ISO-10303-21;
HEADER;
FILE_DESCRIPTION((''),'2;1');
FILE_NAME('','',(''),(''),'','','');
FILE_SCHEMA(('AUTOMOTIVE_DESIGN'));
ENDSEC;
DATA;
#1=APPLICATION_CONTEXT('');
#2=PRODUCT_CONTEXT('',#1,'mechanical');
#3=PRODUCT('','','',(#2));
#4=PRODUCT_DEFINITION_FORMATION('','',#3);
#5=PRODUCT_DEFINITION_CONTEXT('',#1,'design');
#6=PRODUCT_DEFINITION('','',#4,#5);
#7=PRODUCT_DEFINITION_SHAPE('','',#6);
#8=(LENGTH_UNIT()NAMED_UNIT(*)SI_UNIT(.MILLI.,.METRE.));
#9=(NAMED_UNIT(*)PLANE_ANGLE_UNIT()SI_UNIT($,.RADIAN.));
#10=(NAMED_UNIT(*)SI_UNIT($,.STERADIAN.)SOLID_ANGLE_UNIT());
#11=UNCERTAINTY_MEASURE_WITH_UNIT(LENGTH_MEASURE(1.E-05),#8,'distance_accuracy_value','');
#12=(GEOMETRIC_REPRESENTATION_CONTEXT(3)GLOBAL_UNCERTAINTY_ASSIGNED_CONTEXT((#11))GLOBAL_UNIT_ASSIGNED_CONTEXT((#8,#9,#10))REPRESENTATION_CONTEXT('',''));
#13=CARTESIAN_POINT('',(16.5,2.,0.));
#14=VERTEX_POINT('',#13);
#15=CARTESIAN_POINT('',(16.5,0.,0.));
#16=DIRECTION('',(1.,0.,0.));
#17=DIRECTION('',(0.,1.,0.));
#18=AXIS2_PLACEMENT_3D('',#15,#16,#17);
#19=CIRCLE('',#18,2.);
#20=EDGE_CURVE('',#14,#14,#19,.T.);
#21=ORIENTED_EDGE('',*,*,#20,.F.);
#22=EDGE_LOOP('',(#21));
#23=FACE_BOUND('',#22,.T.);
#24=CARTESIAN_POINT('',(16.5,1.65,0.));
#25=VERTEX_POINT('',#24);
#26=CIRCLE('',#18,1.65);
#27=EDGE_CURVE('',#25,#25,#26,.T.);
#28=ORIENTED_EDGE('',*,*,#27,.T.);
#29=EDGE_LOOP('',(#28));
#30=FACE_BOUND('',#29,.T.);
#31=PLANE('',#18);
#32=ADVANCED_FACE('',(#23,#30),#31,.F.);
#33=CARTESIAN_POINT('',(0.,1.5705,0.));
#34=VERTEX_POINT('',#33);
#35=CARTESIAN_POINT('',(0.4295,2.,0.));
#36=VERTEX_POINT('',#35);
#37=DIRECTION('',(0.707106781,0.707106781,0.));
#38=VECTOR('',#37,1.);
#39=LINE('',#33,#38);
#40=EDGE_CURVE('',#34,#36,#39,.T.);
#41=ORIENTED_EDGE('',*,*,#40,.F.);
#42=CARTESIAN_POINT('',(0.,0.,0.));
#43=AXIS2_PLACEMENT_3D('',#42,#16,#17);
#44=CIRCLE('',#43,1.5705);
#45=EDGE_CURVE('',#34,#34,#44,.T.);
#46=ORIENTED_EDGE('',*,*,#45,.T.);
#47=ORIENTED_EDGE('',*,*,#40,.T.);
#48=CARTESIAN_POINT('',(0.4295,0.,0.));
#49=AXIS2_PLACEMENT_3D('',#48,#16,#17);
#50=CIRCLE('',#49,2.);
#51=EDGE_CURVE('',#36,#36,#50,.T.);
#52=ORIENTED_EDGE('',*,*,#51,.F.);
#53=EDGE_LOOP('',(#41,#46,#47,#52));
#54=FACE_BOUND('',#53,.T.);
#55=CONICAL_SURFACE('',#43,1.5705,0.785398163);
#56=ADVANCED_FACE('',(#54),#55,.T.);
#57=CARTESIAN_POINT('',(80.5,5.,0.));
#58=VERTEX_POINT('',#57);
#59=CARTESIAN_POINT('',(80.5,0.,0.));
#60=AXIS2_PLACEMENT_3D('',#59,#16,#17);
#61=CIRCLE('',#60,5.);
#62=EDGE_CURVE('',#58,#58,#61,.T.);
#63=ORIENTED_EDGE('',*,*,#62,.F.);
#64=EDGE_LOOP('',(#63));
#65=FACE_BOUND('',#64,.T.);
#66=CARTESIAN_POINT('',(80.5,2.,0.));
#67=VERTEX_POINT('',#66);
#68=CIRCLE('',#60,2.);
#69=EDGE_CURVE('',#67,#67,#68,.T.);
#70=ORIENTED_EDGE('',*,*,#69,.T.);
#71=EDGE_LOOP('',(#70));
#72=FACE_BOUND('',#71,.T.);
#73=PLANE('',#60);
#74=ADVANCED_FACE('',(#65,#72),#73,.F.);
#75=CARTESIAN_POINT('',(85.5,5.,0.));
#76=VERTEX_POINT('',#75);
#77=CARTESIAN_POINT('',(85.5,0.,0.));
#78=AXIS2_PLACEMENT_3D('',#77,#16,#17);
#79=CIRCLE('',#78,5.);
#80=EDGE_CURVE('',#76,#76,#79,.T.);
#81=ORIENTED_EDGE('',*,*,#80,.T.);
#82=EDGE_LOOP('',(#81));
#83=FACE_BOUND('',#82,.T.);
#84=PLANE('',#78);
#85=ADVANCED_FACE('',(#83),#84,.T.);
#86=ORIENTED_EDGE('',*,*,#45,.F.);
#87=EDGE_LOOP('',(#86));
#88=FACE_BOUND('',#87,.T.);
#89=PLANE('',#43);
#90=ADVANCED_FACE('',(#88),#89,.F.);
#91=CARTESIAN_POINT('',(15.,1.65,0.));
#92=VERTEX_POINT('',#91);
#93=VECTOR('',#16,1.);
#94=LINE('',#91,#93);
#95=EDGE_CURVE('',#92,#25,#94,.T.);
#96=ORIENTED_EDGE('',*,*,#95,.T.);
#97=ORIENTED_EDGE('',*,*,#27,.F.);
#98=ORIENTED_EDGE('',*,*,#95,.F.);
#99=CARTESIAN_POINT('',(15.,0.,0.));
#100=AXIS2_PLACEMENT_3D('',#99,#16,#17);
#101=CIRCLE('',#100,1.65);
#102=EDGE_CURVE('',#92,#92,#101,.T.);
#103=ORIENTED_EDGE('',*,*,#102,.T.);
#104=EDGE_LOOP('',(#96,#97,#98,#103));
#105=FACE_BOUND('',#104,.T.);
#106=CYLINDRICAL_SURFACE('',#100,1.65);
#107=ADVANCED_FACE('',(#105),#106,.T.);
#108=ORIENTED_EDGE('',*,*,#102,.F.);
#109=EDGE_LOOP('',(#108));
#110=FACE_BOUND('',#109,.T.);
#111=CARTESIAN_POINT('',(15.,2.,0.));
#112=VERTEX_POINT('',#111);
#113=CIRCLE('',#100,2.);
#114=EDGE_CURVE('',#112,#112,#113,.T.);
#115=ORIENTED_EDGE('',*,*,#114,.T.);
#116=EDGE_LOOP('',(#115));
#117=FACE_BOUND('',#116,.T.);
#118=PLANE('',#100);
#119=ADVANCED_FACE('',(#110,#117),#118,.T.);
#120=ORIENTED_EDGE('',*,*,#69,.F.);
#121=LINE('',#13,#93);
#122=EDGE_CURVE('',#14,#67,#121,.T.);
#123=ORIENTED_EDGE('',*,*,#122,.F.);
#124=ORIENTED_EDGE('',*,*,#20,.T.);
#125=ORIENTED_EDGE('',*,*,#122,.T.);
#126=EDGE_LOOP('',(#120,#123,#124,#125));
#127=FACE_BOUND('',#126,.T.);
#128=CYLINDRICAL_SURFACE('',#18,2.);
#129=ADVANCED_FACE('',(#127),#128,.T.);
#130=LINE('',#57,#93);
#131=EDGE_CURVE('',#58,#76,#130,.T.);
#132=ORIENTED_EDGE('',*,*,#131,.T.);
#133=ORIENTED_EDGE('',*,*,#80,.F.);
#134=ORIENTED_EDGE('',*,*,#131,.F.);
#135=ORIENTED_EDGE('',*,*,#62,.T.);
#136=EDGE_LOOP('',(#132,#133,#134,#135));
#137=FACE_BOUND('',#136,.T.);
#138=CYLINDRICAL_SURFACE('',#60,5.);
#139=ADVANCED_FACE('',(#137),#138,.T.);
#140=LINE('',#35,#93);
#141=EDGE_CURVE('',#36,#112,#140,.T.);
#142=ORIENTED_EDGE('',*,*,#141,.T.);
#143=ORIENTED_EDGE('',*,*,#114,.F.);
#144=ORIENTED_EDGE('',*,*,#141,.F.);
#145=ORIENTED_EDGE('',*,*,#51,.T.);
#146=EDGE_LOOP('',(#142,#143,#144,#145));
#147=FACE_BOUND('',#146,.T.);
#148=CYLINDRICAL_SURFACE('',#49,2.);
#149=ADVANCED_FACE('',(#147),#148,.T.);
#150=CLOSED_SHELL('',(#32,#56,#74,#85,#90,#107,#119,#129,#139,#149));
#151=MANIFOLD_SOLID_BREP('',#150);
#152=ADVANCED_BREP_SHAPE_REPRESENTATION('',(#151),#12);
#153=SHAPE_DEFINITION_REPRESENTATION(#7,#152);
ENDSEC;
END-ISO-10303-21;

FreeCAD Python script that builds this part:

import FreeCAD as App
import Part
import Sketcher
Q = App.Units.Quantity

doc = App.newDocument("Part")
body = doc.addObject("PartDesign::Body", "Body")

# Sketch on XY plane
sketch1 = body.newObject("Sketcher::SketchObject", "Sketch")
sketch1.AttachmentSupport = (doc.getObject("XY_Plane"), [""])
sketch1.MapMode = "FlatFace"
sketch1.addGeometry([
    Part.LineSegment(App.Vector(0, 0, 0), App.Vector(85.5, 0, 0)),  # 0
    Part.LineSegment(App.Vector(85.5, 0, 0), App.Vector(85.5, 5, 0)),  # 1
    Part.LineSegment(App.Vector(85.5, 5, 0), App.Vector(80.5, 5, 0)),  # 2
    Part.LineSegment(App.Vector(80.5, 5, 0), App.Vector(80.5, 2, 0)),  # 3
    Part.LineSegment(App.Vector(80.5, 2, 0), App.Vector(16.5, 2, 0)),  # 4
    Part.LineSegment(App.Vector(16.5, 2, 0), App.Vector(16.5, 1.65, 0)),  # 5
    Part.LineSegment(App.Vector(16.5, 1.65, 0), App.Vector(15, 1.65, 0)),  # 6
    Part.LineSegment(App.Vector(15, 1.65, 0), App.Vector(15, 2, 0)),  # 7
    Part.LineSegment(App.Vector(15, 2, 0), App.Vector(0.43, 2, 0)),  # 8
    Part.LineSegment(App.Vector(0.43, 2, 0), App.Vector(0, 1.57, 0)),  # 9
    Part.LineSegment(App.Vector(0, 1.57, 0), App.Vector(0, 0, 0)),  # 10
], False)
sketch1.addConstraint([
    Sketcher.Constraint("Coincident", 0, 2, 1, 1),
    Sketcher.Constraint("Coincident", 1, 2, 2, 1),
    Sketcher.Constraint("Coincident", 2, 2, 3, 1),
    Sketcher.Constraint("Coincident", 3, 2, 4, 1),
    Sketcher.Constraint("Coincident", 4, 2, 5, 1),
    Sketcher.Constraint("Coincident", 5, 2, 6, 1),
    Sketcher.Constraint("Coincident", 6, 2, 7, 1),
    Sketcher.Constraint("Coincident", 7, 2, 8, 1),
    Sketcher.Constraint("Coincident", 8, 2, 9, 1),
    Sketcher.Constraint("Coincident", 9, 2, 10, 1),
    Sketcher.Constraint("Coincident", 10, 2, 0, 1),
    Sketcher.Constraint("Horizontal", 0),
    Sketcher.Constraint("Vertical", 1),
    Sketcher.Constraint("Horizontal", 2),
    Sketcher.Constraint("Vertical", 3),
    Sketcher.Constraint("Horizontal", 4),
    Sketcher.Constraint("Vertical", 5),
    Sketcher.Constraint("Horizontal", 6),
    Sketcher.Constraint("Vertical", 7),
    Sketcher.Constraint("Horizontal", 8),
    Sketcher.Constraint("Vertical", 10),
    Sketcher.Constraint("Coincident", 10, 2, -1, 1),
    Sketcher.Constraint("Horizontal", 4, 2, 7, 2),
    Sketcher.Constraint("Equal", 2, 1),
    Sketcher.Constraint("DistanceX", 2, 2, 2, 1, 5.0),
    Sketcher.Constraint("DistanceX", 4, 2, 4, 1, 64.0),
    Sketcher.Constraint("DistanceY", 3, 2, 3, 1, 3.0),
    Sketcher.Constraint("Angle", 9, Q("-135 deg")),
    Sketcher.Constraint("DistanceX", 0, 1, 0, 2, 85.5),
    Sketcher.Constraint("DistanceX", 6, 2, 6, 1, 1.5),
    Sketcher.Constraint("DistanceY", 5, 2, 5, 1, 0.35),
    Sketcher.Constraint("DistanceX", 8, 2, 8, 1, 14.5705),
])
revolution = body.newObject("PartDesign::Revolution", "Revolution")
revolution.Profile = sketch1
revolution.ReferenceAxis = (sketch1, ["H_Axis"])
revolution.Angle = 360

doc.recompute()
